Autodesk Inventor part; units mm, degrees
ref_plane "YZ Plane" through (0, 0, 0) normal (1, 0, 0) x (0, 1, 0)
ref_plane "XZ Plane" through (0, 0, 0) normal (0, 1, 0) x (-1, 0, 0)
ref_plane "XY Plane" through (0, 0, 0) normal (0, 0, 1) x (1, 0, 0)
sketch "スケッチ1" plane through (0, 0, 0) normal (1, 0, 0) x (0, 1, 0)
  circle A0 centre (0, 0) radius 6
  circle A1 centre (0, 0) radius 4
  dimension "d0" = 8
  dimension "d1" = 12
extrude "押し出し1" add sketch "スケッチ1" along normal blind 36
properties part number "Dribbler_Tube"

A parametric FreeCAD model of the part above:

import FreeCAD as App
import Part
import Sketcher
from FreeCAD import Vector
Q = App.Units.Quantity

doc = App.newDocument("Part")
params = doc.addObject("Spreadsheet::Sheet", "Params")
for row, (alias, value) in enumerate([
    ("sketch1_diameter", "12 mm"),
    ("sketch1_diameter2", "8 mm"),
    ("pad1_length", "36 mm"),
], start=1):
    params.set(f"A{row}", alias)
    params.set(f"B{row}", "=" + value)
    params.setAlias(f"B{row}", alias)

body = doc.addObject("PartDesign::Body", "Body")

# Sketch on YZ plane
sketch1 = doc.addObject("Sketcher::SketchObject", "Sketch")
body.addObject(sketch1)
sketch1.AttachmentSupport = (doc.YZ_Plane, [""])
sketch1.MapMode = "FlatFace"
sketch1.addGeometry([
    Part.Circle(Vector(0, 0, 0), Vector(0, 0, 1), 6),
    Part.Circle(Vector(0, 0, 0), Vector(0, 0, 1), 4),
], False)
sketch1.addConstraint([
    Sketcher.Constraint("Coincident", 0, 3, -1, 1),
    Sketcher.Constraint("Coincident", 1, 3, -1, 1),
    Sketcher.Constraint("Diameter", 0, Q("12 mm")),
    Sketcher.Constraint("Diameter", 1, Q("8 mm")),
])
sketch1.setExpression("Constraints[2]", "Params.sketch1_diameter")
sketch1.setExpression("Constraints[3]", "Params.sketch1_diameter2")
pad1 = doc.addObject("PartDesign::Pad", "Pad")
body.addObject(pad1)
pad1.Profile = sketch1
pad1.setExpression("Length", "Params.pad1_length")

doc.recompute()
